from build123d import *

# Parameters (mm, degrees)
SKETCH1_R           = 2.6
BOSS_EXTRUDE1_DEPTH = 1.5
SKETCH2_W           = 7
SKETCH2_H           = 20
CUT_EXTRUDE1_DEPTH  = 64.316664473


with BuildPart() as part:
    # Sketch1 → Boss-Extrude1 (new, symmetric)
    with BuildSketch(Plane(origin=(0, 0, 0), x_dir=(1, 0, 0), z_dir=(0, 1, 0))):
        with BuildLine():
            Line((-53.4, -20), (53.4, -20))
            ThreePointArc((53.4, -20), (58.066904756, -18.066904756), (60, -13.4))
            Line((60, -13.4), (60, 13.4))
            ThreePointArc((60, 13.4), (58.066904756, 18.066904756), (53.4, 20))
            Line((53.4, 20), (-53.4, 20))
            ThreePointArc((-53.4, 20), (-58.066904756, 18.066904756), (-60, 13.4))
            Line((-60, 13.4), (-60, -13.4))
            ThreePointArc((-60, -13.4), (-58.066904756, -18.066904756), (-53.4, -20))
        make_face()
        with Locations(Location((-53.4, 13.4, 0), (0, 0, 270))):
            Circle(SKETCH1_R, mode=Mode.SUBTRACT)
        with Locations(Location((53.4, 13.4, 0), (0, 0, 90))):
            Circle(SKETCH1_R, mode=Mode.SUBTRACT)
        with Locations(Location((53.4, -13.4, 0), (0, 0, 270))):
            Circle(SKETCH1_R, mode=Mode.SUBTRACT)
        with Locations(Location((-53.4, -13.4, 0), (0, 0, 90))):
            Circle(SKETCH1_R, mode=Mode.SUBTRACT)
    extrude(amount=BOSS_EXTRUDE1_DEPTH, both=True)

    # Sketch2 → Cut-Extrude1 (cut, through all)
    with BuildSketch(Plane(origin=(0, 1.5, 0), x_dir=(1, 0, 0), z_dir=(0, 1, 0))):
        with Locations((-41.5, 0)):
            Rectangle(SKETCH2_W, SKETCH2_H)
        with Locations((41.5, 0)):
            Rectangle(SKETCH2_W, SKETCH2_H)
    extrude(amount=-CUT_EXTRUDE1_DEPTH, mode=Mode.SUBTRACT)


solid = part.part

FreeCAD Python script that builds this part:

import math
import FreeCAD as App
import Part
import Sketcher

V = App.Vector
Q = App.Units.Quantity


def add_polygon(sketch, points):
    """Adds a closed chain of lines whose ends are joined by coincident constraints."""
    first, n = sketch.GeometryCount, len(points)
    for a, b in zip(points, points[1:] + points[:1]):
        sketch.addGeometry(Part.LineSegment(App.Vector(*a, 0), App.Vector(*b, 0)), False)
    for i in range(n):
        sketch.addConstraint(Sketcher.Constraint("Coincident", first + i, 2, first + (i + 1) % n, 1))

doc = App.newDocument("Part")
params = doc.addObject("Spreadsheet::Sheet", "Params")
for row, (alias, value) in enumerate([
    ("sketch1_diameter", "5.2 mm"),
    ("sketch1_radius", "6.6 mm"),
    ("sketch1_width", "106.8 mm"),
    ("sketch1_height", "26.8 mm"),
    ("pad1_length", "3 mm"),
    ("sketch2_width", "7 mm"),
    ("sketch2_height", "20 mm"),
], start=1):
    params.set(f"A{row}", alias)
    params.set(f"B{row}", "=" + value)
    params.setAlias(f"B{row}", alias)

body = doc.addObject("PartDesign::Body", "Body")

# Sketch on XZ plane
sketch1 = body.newObject("Sketcher::SketchObject", "Sketch")
sketch1.AttachmentSupport = (doc.getObject("XZ_Plane"), [""])
sketch1.MapMode = "FlatFace"
sketch1.addGeometry([
    Part.LineSegment(V(-53.4, 20, 0), V(53.4, 20, 0)),  # 0
    Part.ArcOfCircle(Part.Circle(V(53.4, 13.4, 0), V(0, 0, 1), 6.6), math.radians(0), math.radians(90)),  # 1
    Part.LineSegment(V(60, 13.4, 0), V(60, -13.4, 0)),  # 2
    Part.ArcOfCircle(Part.Circle(V(53.4, -13.4, 0), V(0, 0, 1), 6.6), math.radians(-90), math.radians(0)),  # 3
    Part.LineSegment(V(53.4, -20, 0), V(-53.4, -20, 0)),  # 4
    Part.ArcOfCircle(Part.Circle(V(-53.4, -13.4, 0), V(0, 0, 1), 6.6), math.radians(180), math.radians(270)),  # 5
    Part.LineSegment(V(-60, -13.4, 0), V(-60, 13.4, 0)),  # 6
    Part.ArcOfCircle(Part.Circle(V(-53.4, 13.4, 0), V(0, 0, 1), 6.6), math.radians(90), math.radians(180)),  # 7
    Part.Circle(V(-53.4, 13.4, 0), V(0, 0, 1), 2.6),  # 8
    Part.Circle(V(53.4, 13.4, 0), V(0, 0, 1), 2.6),  # 9
    Part.Circle(V(-53.4, -13.4, 0), V(0, 0, 1), 2.6),  # 10
    Part.Circle(V(53.4, -13.4, 0), V(0, 0, 1), 2.6),  # 11
], False)
sketch1.addConstraint([
    Sketcher.Constraint("Tangent", 0, 2, 1, 2),
    Sketcher.Constraint("Tangent", 1, 1, 2, 1),
    Sketcher.Constraint("Tangent", 2, 2, 3, 2),
    Sketcher.Constraint("Tangent", 3, 1, 4, 1),
    Sketcher.Constraint("Tangent", 4, 2, 5, 2),
    Sketcher.Constraint("Tangent", 5, 1, 6, 1),
    Sketcher.Constraint("Tangent", 6, 2, 7, 2),
    Sketcher.Constraint("Tangent", 7, 1, 0, 1),
    Sketcher.Constraint("Horizontal", 0),
    Sketcher.Constraint("Vertical", 2),
    Sketcher.Constraint("Horizontal", 4),
    Sketcher.Constraint("Vertical", 6),
    Sketcher.Constraint("Coincident", 8, 3, 7, 3),
    Sketcher.Constraint("Coincident", 9, 3, 1, 3),
    Sketcher.Constraint("Coincident", 10, 3, 5, 3),
    Sketcher.Constraint("Coincident", 11, 3, 3, 3),
    Sketcher.Constraint("Equal", 1, 3),
    Sketcher.Constraint("Equal", 3, 5),
    Sketcher.Constraint("Equal", 5, 7),
    Sketcher.Constraint("Equal", 8, 9),
    Sketcher.Constraint("Equal", 9, 10),
    Sketcher.Constraint("Equal", 10, 11),
    Sketcher.Constraint("Symmetric", 1, 3, 5, 3, -1, 1),
    Sketcher.Constraint("Diameter", 8, Q("5.2 mm")),
    Sketcher.Constraint("Radius", 1, Q("6.6 mm")),
    Sketcher.Constraint("DistanceX", 0, 1, 0, 2, Q("106.8 mm")),
    Sketcher.Constraint("DistanceY", 2, 2, 2, 1, Q("26.8 mm")),
])
sketch1.setExpression("Constraints[23]", "Params.sketch1_diameter")
sketch1.setExpression("Constraints[24]", "Params.sketch1_radius")
sketch1.setExpression("Constraints[25]", "Params.sketch1_width")
sketch1.setExpression("Constraints[26]", "Params.sketch1_height")
pad1 = body.newObject("PartDesign::Pad", "Pad")
pad1.Profile = sketch1
pad1.setExpression("Length", "Params.pad1_length")
pad1.Midplane = True

# Sketch on XZ plane
sketch2 = body.newObject("Sketcher::SketchObject", "Sketch001")
sketch2.AttachmentSupport = (doc.getObject("XZ_Plane"), [""])
sketch2.MapMode = "FlatFace"
sketch2.AttachmentOffset = App.Placement(V(0, 0, -1.5), App.Rotation())
add_polygon(sketch2, [(-45, -10), (-45, 10), (-38, 10), (-38, -10)])  # lines 0-3
add_polygon(sketch2, [(38, -10), (38, 10), (45, 10), (45, -10)])  # lines 4-7
sketch2.addConstraint([
    Sketcher.Constraint("Vertical", 0),
    Sketcher.Constraint("Horizontal", 1),
    Sketcher.Constraint("Vertical", 2),
    Sketcher.Constraint("Horizontal", 3),
    Sketcher.Constraint("Vertical", 4),
    Sketcher.Constraint("Horizontal", 5),
    Sketcher.Constraint("Vertical", 6),
    Sketcher.Constraint("Horizontal", 7),
    Sketcher.Constraint("Symmetric", 2, 2, 4, 2, -1, 1),
    Sketcher.Constraint("Symmetric", 0, 2, 6, 2, -1, 1),
    Sketcher.Constraint("Horizontal", 1, 2, 4, 2),
    Sketcher.Constraint("DistanceX", 1, 1, 1, 2, Q("7 mm")),
    Sketcher.Constraint("DistanceY", 0, 1, 0, 2, Q("20 mm")),
    Sketcher.Constraint("DistanceX", 0, 2, -1, 1, Q("45 mm")),
])
sketch2.setExpression("Constraints[19]", "Params.sketch2_width")
sketch2.setExpression("Constraints[20]", "Params.sketch2_height")
pocket1 = body.newObject("PartDesign::Pocket", "Pocket")
pocket1.Profile = sketch2
pocket1.Type = "ThroughAll"
pocket1.Reversed = True

doc.recompute()
